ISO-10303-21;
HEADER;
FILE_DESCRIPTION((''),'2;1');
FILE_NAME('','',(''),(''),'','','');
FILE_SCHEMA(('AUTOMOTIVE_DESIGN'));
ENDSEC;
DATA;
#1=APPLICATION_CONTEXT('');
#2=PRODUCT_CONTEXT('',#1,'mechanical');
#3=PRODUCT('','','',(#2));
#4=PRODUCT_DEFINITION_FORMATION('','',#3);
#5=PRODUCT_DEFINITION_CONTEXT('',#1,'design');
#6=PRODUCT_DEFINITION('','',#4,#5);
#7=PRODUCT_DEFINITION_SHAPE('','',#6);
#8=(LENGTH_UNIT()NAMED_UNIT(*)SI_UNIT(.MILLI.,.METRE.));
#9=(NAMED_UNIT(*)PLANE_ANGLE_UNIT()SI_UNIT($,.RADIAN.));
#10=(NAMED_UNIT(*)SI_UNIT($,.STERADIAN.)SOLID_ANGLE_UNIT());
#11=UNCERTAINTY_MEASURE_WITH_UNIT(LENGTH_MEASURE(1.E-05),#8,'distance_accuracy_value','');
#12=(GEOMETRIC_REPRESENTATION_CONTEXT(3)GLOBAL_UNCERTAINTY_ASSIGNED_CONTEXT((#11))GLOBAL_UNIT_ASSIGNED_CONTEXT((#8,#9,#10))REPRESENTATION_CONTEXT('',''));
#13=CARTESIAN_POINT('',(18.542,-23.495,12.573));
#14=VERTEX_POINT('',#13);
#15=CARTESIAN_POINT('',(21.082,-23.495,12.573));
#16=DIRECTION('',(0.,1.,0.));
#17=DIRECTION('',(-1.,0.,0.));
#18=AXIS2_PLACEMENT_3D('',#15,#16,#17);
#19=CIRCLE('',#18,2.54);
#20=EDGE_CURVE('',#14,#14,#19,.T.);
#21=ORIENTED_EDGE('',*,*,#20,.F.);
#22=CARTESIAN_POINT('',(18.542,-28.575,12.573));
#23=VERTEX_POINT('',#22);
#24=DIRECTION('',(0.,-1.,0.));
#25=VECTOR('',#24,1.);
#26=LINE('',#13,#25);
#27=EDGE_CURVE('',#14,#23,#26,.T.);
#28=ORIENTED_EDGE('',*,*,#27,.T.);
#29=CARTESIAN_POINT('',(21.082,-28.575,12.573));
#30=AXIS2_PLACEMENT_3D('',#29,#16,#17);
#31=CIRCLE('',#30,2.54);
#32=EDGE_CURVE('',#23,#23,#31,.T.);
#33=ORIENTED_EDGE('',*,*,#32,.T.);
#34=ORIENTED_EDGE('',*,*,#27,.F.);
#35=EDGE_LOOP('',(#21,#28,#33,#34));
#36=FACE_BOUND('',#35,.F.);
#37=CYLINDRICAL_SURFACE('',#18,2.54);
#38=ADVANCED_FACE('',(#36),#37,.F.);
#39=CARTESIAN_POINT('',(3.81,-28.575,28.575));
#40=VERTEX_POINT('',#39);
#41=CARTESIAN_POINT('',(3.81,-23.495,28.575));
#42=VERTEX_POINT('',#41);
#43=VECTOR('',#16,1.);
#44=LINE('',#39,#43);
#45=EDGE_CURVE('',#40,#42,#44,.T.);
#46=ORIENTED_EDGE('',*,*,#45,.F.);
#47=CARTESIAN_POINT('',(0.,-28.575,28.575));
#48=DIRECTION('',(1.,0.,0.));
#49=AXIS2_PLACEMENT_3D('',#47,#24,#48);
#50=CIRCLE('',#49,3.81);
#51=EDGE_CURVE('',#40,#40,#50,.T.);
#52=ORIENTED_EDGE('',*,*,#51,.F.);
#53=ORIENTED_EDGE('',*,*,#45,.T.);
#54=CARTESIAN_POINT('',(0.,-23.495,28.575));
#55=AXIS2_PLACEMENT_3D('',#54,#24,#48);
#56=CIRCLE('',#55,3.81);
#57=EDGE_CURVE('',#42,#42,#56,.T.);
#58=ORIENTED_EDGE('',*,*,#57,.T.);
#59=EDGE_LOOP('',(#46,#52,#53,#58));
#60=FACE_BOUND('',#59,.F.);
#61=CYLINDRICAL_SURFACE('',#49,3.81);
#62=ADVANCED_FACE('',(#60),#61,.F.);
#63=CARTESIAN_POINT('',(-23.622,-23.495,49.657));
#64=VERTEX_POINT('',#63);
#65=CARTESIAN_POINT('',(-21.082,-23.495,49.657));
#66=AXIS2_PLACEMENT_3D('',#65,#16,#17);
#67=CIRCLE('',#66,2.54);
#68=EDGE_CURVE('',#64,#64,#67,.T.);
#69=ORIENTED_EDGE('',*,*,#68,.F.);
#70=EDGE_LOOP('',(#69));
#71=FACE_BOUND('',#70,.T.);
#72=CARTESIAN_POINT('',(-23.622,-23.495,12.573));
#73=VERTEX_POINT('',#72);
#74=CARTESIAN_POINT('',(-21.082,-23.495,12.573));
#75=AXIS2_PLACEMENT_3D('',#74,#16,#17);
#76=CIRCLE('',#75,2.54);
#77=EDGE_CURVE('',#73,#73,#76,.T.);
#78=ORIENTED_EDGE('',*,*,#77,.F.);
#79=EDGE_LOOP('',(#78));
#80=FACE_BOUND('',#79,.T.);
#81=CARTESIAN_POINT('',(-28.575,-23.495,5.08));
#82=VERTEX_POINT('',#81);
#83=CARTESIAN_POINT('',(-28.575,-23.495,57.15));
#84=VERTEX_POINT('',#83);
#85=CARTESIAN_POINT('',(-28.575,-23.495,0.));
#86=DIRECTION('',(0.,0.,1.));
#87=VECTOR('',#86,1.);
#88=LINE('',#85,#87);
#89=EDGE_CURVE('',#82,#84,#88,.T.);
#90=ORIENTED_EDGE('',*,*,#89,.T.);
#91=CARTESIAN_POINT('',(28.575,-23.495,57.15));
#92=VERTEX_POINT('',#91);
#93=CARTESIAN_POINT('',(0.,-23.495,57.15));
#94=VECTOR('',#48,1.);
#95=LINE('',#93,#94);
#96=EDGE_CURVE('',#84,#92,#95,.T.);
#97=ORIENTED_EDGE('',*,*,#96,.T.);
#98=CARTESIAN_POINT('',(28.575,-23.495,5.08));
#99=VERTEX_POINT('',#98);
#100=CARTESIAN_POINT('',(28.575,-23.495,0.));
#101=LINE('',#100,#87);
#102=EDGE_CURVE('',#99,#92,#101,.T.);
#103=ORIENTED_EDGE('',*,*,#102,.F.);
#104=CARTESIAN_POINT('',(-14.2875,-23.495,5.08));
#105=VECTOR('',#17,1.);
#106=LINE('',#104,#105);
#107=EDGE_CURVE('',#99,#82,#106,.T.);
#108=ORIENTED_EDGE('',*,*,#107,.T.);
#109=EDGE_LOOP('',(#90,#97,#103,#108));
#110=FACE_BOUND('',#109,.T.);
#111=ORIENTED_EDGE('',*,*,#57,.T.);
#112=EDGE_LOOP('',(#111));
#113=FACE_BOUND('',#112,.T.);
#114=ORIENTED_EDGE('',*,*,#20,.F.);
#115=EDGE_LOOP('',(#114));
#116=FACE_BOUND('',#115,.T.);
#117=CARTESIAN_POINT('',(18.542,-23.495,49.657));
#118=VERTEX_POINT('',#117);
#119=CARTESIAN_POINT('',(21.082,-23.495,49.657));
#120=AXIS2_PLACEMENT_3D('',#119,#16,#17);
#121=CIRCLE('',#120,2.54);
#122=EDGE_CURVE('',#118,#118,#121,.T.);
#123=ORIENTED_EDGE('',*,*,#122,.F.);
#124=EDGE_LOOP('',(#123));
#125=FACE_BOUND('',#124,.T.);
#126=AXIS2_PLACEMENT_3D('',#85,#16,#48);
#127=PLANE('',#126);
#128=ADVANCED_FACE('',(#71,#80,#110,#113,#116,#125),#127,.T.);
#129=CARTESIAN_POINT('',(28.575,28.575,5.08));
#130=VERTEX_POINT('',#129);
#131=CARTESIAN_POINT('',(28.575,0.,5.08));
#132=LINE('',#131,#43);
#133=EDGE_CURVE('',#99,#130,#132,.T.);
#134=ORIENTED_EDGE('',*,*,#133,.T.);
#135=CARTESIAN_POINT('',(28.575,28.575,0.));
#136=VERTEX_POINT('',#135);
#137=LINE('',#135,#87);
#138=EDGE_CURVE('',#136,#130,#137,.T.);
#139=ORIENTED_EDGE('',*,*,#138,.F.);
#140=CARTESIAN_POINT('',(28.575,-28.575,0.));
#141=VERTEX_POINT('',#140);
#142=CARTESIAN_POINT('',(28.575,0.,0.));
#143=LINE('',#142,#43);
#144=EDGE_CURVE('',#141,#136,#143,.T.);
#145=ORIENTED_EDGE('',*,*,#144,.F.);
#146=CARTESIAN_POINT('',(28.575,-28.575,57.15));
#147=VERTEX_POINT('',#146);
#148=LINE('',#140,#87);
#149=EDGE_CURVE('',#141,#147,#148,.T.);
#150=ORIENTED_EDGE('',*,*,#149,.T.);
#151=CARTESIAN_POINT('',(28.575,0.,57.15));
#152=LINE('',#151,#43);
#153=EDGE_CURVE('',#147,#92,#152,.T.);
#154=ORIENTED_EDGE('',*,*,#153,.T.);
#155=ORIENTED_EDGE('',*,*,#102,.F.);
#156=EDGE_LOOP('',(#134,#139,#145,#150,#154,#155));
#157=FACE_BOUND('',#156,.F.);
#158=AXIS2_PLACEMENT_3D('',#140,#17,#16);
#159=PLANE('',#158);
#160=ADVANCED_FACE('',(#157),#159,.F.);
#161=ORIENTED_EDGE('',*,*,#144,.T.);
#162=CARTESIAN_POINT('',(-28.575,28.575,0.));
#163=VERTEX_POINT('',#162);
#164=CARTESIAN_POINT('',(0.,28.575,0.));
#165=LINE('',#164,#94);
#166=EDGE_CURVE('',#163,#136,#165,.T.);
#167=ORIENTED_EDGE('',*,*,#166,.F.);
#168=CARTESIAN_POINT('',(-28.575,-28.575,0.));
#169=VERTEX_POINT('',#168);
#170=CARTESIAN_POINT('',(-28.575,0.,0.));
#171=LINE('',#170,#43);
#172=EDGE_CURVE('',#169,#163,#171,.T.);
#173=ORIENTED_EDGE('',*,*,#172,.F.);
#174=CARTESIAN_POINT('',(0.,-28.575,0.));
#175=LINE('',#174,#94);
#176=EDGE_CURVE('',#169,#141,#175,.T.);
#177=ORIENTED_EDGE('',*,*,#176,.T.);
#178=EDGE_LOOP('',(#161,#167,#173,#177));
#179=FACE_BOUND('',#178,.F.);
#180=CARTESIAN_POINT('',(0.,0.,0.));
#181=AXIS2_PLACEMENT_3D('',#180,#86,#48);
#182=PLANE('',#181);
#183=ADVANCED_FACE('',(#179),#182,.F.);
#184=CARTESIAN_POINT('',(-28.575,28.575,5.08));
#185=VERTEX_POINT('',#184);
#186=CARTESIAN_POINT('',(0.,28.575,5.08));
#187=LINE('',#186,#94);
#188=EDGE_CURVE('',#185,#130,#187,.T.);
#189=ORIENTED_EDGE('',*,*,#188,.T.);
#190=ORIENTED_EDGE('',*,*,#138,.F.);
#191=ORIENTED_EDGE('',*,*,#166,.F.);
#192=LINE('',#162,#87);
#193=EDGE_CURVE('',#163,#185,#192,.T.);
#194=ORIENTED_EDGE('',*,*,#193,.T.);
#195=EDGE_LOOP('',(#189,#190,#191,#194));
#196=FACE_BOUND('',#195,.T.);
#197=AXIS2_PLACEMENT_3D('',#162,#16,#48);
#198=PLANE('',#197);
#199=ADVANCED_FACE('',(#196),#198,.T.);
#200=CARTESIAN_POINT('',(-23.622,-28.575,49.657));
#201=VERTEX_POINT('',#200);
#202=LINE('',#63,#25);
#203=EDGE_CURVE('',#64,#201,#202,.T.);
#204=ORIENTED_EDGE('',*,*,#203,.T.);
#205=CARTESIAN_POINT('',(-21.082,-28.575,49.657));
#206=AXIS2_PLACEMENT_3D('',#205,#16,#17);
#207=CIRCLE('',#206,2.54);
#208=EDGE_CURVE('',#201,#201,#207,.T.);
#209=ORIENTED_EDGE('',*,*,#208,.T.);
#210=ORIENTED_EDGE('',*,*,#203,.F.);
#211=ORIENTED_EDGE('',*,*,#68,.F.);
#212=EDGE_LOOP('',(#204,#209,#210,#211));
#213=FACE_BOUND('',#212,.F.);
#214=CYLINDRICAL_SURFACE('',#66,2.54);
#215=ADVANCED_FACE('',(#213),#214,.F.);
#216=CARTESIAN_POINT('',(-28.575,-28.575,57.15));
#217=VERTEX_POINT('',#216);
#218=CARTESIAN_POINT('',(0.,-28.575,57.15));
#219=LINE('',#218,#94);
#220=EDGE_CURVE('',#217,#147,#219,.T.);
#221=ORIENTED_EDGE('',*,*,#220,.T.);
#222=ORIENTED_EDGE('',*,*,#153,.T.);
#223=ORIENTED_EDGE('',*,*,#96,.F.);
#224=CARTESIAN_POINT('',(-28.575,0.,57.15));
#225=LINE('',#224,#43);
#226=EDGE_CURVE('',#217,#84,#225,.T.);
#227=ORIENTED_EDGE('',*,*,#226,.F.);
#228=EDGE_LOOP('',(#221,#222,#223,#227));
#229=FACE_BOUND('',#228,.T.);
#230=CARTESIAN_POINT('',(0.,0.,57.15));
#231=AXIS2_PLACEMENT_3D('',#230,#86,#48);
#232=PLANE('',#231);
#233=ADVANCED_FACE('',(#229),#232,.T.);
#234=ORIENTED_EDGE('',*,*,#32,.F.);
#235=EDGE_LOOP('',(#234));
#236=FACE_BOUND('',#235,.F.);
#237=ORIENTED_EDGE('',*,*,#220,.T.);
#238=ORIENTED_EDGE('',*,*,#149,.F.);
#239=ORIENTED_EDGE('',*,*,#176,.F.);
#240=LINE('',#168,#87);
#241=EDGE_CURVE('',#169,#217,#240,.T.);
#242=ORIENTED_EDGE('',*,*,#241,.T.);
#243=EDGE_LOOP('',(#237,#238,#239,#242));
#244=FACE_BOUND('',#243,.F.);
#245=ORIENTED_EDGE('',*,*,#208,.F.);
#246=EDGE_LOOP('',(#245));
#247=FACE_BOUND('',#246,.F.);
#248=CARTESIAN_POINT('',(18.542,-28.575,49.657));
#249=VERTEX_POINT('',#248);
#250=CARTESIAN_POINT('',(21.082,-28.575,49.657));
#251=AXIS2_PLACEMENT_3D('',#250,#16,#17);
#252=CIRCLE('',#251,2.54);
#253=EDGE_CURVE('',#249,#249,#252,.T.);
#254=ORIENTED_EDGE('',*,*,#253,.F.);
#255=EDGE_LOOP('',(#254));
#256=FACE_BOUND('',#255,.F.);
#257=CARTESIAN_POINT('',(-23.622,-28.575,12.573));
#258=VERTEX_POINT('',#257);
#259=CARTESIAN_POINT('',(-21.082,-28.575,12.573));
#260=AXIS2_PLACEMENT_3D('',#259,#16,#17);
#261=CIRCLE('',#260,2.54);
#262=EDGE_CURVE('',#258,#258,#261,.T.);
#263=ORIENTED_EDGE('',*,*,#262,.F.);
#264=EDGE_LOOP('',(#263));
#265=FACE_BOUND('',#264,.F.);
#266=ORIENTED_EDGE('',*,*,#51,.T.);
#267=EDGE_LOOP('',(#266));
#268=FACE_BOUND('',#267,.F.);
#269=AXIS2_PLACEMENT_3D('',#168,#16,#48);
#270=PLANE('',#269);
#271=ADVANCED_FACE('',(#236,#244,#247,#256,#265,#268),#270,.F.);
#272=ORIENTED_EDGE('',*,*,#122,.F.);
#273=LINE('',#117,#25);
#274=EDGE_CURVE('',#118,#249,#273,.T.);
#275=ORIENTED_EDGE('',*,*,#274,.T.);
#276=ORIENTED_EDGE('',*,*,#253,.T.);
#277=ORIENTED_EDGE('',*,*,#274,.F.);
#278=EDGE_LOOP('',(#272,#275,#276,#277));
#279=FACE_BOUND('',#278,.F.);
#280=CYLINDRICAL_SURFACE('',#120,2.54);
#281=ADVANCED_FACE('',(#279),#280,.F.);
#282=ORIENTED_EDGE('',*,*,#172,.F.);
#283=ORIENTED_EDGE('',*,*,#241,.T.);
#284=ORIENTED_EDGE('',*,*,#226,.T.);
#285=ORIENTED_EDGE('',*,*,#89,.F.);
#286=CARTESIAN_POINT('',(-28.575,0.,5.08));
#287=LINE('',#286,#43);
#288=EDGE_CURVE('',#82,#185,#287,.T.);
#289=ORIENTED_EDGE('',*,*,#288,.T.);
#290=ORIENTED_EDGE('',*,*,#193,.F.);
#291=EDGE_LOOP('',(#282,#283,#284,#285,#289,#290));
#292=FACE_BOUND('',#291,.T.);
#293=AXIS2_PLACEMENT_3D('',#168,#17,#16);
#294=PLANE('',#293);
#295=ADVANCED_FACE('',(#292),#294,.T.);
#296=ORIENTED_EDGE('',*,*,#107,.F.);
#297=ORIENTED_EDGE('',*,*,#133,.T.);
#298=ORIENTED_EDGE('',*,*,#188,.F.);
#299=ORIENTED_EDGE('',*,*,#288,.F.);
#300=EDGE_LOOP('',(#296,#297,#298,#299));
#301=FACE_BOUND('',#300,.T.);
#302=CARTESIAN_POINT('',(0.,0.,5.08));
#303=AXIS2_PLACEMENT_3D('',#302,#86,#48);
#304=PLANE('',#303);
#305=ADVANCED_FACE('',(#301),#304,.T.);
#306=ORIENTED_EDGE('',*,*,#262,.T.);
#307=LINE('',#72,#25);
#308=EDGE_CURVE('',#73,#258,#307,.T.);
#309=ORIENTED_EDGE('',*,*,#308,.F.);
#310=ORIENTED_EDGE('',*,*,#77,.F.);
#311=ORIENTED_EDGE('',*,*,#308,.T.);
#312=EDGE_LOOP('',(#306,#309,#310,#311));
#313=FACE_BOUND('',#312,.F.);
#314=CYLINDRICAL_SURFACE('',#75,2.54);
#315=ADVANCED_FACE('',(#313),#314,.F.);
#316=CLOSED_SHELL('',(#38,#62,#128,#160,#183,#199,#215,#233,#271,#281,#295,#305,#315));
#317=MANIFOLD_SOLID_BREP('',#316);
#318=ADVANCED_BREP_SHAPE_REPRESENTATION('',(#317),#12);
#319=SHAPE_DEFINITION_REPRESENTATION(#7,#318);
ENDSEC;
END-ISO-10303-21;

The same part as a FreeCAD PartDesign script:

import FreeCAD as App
import Part
import Sketcher
from FreeCAD import Vector
Q = App.Units.Quantity


def faces_at(feature, points):
    """Names of the faces that lie closest to the given points."""
    faces = feature.Shape.Faces
    near = lambda p: min(range(len(faces)), key=lambda i: faces[i].distToShape(Part.Vertex(*p))[0])
    return sorted({f"Face{near(p) + 1}" for p in points})


def add_polygon(sketch, points):
    """Adds a closed chain of lines whose ends are joined by coincident constraints."""
    first, n = sketch.GeometryCount, len(points)
    for a, b in zip(points, points[1:] + points[:1]):
        sketch.addGeometry(Part.LineSegment(App.Vector(*a, 0), App.Vector(*b, 0)), False)
    for i in range(n):
        sketch.addConstraint(Sketcher.Constraint("Coincident", first + i, 2, first + (i + 1) % n, 1))

doc = App.newDocument("Part")
body = doc.addObject("PartDesign::Body", "Body")

# Sketch on XY plane
sketch1 = doc.addObject("Sketcher::SketchObject", "Sketch")
body.addObject(sketch1)
sketch1.AttachmentSupport = (doc.XY_Plane, [""])
sketch1.MapMode = "FlatFace"
add_polygon(sketch1, [(-28.575, 28.575), (-28.575, -28.575), (28.575, -28.575), (28.575, 28.575)])  # lines 0-3
sketch1.addConstraint(Sketcher.Constraint("Vertical", 0))
sketch1.addConstraint(Sketcher.Constraint("Horizontal", 1))
sketch1.addConstraint(Sketcher.Constraint("Vertical", 2))
sketch1.addConstraint(Sketcher.Constraint("Horizontal", 3))
sketch1.addConstraint(Sketcher.Constraint("Symmetric", 0, 2, 2, 2, -1, 1))
sketch1.addConstraint(Sketcher.Constraint("Equal", 3, 0))
sketch1.addConstraint(Sketcher.Constraint("DistanceX", 1, 1, 1, 2, Q("2.25 in")))
pad1 = doc.addObject("PartDesign::Pad", "Pad")
body.addObject(pad1)
pad1.Profile = sketch1
pad1.Length = Q("2.25 in")
doc.recompute()

thickness = doc.addObject("PartDesign::Thickness", "Thickness")
body.addObject(thickness)
thickness.Base = (pad1, faces_at(pad1, [
    (0, 0, 57.15),
    (28.575, 0, 28.575),
    (0, 28.575, 28.575),
    (-28.575, 0, 28.575),
]))
thickness.Value = Q("0.2 in")
thickness.Reversed = True
thickness.Join = "Arc"

# Sketch on XZ plane
sketch2 = doc.addObject("Sketcher::SketchObject", "Sketch001")
body.addObject(sketch2)
sketch2.AttachmentSupport = (doc.XZ_Plane, [""])
sketch2.MapMode = "FlatFace"
sketch2.AttachmentOffset = App.Placement(Vector(0, 0, 0.925 * 25.4), App.Rotation())
sketch2.addGeometry(Part.Circle(Vector(21.082, 49.657, 0), Vector(0, 0, 1), 2.54), False)
sketch2.addGeometry(Part.Circle(Vector(-21.082, 49.657, 0), Vector(0, 0, 1), 2.54), False)
sketch2.addGeometry(Part.Circle(Vector(21.082, 12.573, 0), Vector(0, 0, 1), 2.54), False)
sketch2.addGeometry(Part.Circle(Vector(-21.082, 12.573, 0), Vector(0, 0, 1), 2.54), False)
sketch2.addConstraint(Sketcher.Constraint("Equal", 0, 1))
sketch2.addConstraint(Sketcher.Constraint("Equal", 1, 2))
sketch2.addConstraint(Sketcher.Constraint("Equal", 2, 3))
sketch2.addConstraint(Sketcher.Constraint("Symmetric", 0, 3, 1, 3, -2))
sketch2.addConstraint(Sketcher.Constraint("Symmetric", 2, 3, 3, 3, -2))
sketch2.addConstraint(Sketcher.Constraint("Vertical", 0, 3, 2, 3))
sketch2.addConstraint(Sketcher.Constraint("Diameter", 0, Q("0.2 in")))
sketch2.addConstraint(Sketcher.Constraint("DistanceX", -1, 1, 0, 3, Q("0.83 in")))
sketch2.addConstraint(Sketcher.Constraint("DistanceY", 2, 3, 0, 3, Q("1.46 in")))
sketch2.addConstraint(Sketcher.Constraint("DistanceY", -1, 1, 0, 3, Q("1.955 in")))
pocket1 = doc.addObject("PartDesign::Pocket", "Pocket")
body.addObject(pocket1)
pocket1.Profile = sketch2
pocket1.Length = Q("1 in")
pocket1.Reversed = True

# Sketch on XZ plane
sketch3 = doc.addObject("Sketcher::SketchObject", "Sketch002")
body.addObject(sketch3)
sketch3.AttachmentSupport = (doc.XZ_Plane, [""])
sketch3.MapMode = "FlatFace"
sketch3.AttachmentOffset = App.Placement(Vector(0, 0, 1.125 * 25.4), App.Rotation())
sketch3.addGeometry(Part.Circle(Vector(0, 28.575, 0), Vector(0, 0, 1), 3.81), False)
sketch3.addConstraint(Sketcher.Constraint("PointOnObject", 0, 3, -2))
sketch3.addConstraint(Sketcher.Constraint("Diameter", 0, Q("0.3 in")))
sketch3.addConstraint(Sketcher.Constraint("DistanceY", -1, 1, 0, 3, Q("1.125 in")))
pocket2 = doc.addObject("PartDesign::Pocket", "Pocket001")
body.addObject(pocket2)
pocket2.Profile = sketch3
pocket2.Length = Q("1 in")

doc.recompute()
